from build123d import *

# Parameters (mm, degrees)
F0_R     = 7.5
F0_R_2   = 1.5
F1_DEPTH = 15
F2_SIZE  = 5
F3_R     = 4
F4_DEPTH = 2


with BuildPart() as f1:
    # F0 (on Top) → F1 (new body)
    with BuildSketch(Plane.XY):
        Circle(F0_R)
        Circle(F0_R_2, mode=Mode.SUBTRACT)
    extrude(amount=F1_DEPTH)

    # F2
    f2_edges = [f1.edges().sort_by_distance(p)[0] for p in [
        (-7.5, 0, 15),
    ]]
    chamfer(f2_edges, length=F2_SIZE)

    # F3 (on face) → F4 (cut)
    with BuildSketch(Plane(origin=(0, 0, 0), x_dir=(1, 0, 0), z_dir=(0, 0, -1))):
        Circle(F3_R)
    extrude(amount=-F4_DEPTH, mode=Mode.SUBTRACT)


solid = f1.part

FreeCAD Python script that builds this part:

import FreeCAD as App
import Part
import Sketcher
from FreeCAD import Vector


def edges_at(feature, points):
    """Names of the edges that pass closest to the given points."""
    edges = feature.Shape.Edges
    near = lambda p: min(range(len(edges)), key=lambda i: edges[i].distToShape(Part.Vertex(*p))[0])
    return sorted({f"Edge{near(p) + 1}" for p in points})

doc = App.newDocument("Part")
body = doc.addObject("PartDesign::Body", "Body")

sketch1 = doc.addObject("Sketcher::SketchObject", "Sketch")
body.addObject(sketch1)
sketch1.AttachmentSupport = (doc.XY_Plane, [""])
sketch1.MapMode = "FlatFace"
sketch1.addGeometry([
    Part.Circle(Vector(0, 0, 0), Vector(0, 0, 1), 7.5),
    Part.Circle(Vector(0, 0, 0), Vector(0, 0, 1), 1.5),
], False)
sketch1.addConstraint([
    Sketcher.Constraint("Coincident", 0, 3, -1, 1),
    Sketcher.Constraint("Coincident", 1, 3, -1, 1),
    Sketcher.Constraint("Diameter", 0, 15.0),
    Sketcher.Constraint("Diameter", 1, 3.0),
])
pad1 = doc.addObject("PartDesign::Pad", "Pad")
body.addObject(pad1)
pad1.Profile = sketch1
pad1.Length = 15
doc.recompute()

chamfer = doc.addObject("PartDesign::Chamfer", "Chamfer")
body.addObject(chamfer)
chamfer.Base = (pad1, edges_at(pad1, [(-7.5, 0, 15)]))
chamfer.Size = 5

sketch2 = doc.addObject("Sketcher::SketchObject", "Sketch001")
body.addObject(sketch2)
sketch2.AttachmentSupport = (doc.XY_Plane, [""])
sketch2.MapMode = "FlatFace"
sketch2.addGeometry(Part.Circle(Vector(0, 0, 0), Vector(0, 0, 1), 4), False)
sketch2.addConstraint([
    Sketcher.Constraint("Coincident", 0, 3, -1, 1),
    Sketcher.Constraint("Diameter", 0, 8.0),
])
pocket1 = doc.addObject("PartDesign::Pocket", "Pocket")
body.addObject(pocket1)
pocket1.Profile = sketch2
pocket1.Length = 2
pocket1.Reversed = True

doc.recompute()
